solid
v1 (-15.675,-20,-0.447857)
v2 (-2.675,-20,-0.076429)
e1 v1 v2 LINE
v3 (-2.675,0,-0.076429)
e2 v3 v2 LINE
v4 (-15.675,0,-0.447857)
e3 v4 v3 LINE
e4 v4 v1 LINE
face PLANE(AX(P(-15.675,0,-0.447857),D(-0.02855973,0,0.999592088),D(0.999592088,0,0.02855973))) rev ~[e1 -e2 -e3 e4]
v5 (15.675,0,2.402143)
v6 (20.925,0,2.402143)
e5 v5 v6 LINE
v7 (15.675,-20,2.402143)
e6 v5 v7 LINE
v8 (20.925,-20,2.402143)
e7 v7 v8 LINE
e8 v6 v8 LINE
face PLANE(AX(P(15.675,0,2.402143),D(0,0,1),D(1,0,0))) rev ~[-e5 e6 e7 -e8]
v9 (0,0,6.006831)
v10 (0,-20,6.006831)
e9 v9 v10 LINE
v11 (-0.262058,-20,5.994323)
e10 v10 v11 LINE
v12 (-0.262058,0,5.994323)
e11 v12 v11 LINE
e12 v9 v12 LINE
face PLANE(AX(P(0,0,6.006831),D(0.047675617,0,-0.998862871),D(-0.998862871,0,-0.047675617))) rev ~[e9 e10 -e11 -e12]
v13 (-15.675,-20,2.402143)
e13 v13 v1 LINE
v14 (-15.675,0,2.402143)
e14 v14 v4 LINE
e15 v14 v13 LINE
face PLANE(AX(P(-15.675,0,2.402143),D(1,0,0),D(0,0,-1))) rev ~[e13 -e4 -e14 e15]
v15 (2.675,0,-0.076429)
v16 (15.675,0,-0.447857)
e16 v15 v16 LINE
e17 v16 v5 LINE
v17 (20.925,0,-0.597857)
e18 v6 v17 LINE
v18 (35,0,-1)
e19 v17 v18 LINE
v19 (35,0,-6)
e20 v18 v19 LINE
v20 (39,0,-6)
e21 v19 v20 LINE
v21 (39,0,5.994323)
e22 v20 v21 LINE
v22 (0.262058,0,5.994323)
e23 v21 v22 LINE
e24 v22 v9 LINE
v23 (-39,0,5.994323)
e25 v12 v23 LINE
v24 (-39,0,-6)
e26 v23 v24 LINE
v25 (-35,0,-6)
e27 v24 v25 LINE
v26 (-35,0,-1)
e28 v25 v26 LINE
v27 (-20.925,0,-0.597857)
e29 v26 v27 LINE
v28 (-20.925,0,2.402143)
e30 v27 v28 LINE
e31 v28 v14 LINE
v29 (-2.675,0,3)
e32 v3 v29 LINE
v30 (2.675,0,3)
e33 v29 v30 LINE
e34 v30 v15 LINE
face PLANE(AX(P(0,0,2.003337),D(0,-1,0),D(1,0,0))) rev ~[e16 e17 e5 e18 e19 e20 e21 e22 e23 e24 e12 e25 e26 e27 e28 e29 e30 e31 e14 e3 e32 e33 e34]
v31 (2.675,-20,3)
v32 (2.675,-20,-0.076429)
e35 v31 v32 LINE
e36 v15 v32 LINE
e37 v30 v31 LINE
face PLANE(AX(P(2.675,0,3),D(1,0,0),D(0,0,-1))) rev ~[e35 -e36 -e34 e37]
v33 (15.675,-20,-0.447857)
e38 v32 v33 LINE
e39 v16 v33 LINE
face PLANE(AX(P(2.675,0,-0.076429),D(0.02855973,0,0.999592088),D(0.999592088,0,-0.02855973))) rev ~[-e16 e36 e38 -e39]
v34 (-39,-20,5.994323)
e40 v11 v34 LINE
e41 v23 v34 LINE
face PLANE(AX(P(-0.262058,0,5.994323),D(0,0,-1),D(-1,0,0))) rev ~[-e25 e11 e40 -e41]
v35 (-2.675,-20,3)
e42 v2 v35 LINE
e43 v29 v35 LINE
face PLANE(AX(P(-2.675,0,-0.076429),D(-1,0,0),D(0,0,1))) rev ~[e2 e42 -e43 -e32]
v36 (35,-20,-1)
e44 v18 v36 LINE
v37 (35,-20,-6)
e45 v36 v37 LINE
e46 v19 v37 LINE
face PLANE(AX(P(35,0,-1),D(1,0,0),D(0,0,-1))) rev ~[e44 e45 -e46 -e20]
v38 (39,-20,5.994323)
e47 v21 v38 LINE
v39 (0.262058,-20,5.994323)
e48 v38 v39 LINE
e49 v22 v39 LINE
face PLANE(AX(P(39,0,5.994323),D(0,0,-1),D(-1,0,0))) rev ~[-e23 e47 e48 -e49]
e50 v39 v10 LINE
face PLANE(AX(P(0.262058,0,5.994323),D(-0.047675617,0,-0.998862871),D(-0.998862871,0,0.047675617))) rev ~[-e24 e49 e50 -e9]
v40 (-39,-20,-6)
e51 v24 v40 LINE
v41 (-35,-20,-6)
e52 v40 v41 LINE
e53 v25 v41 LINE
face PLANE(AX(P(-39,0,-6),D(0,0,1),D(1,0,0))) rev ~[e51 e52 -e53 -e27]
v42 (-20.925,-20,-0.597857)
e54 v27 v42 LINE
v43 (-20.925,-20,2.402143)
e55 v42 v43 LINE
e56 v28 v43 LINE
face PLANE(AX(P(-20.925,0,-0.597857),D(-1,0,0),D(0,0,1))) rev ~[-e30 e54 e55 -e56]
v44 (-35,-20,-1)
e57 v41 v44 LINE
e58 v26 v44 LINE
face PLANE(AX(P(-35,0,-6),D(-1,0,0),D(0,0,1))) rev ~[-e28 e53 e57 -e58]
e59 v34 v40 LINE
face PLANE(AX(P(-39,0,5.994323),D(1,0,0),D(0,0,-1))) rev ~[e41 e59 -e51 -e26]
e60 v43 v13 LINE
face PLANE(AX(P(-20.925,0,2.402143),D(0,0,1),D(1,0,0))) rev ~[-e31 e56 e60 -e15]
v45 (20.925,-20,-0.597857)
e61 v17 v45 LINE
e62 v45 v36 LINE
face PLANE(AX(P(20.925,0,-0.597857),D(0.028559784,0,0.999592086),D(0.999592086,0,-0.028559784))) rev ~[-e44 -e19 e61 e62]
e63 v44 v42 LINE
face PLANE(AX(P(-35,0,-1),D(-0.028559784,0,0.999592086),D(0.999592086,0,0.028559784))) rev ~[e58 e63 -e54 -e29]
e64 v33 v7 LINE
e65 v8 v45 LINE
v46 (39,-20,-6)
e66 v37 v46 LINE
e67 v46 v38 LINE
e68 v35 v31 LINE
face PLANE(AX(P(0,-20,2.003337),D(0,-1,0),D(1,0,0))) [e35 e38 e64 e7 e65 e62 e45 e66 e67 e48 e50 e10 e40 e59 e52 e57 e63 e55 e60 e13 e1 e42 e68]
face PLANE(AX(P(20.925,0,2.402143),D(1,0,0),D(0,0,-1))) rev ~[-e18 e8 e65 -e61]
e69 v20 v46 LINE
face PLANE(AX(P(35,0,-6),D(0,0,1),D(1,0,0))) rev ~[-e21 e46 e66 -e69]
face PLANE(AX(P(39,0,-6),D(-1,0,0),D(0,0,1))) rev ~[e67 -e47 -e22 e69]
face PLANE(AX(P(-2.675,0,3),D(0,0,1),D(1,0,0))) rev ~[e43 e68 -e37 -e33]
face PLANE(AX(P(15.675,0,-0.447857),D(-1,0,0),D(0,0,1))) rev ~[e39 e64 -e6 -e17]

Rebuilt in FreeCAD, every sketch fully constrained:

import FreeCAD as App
import Part
import Sketcher


def add_polygon(sketch, points):
    """Adds a closed chain of lines whose ends are joined by coincident constraints."""
    first, n = sketch.GeometryCount, len(points)
    for a, b in zip(points, points[1:] + points[:1]):
        sketch.addGeometry(Part.LineSegment(App.Vector(*a, 0), App.Vector(*b, 0)), False)
    for i in range(n):
        sketch.addConstraint(Sketcher.Constraint("Coincident", first + i, 2, first + (i + 1) % n, 1))

doc = App.newDocument("Part")
params = doc.addObject("Spreadsheet::Sheet", "Params")
for row, (alias, value) in enumerate([
    ("sketch1_width", "4 mm"),
    ("sketch1_height", "3 mm"),
    ("sketch1_height2", "5 mm"),
    ("sketch1_width2", "5.35 mm"),
    ("sketch1_width3", "5.25 mm"),
    ("pad1_length", "20 mm"),
], start=1):
    params.set(f"A{row}", alias)
    params.set(f"B{row}", "=" + value)
    params.setAlias(f"B{row}", alias)

body = doc.addObject("PartDesign::Body", "Body")

# Sketch on XZ plane
sketch1 = doc.addObject("Sketcher::SketchObject", "Sketch")
body.addObject(sketch1)
sketch1.AttachmentSupport = (doc.XZ_Plane, [""])
sketch1.MapMode = "FlatFace"
add_polygon(sketch1, [(-15.68, -0.45), (-2.67, -0.08), (-2.67, 3), (2.67, 3), (2.67, -0.08), (15.68, -0.45), (15.68, 2.4), (20.93, 2.4), (20.93, -0.6), (35, -1), (35, -6), (39, -6), (39, 5.99), (0.26, 5.99), (0, 6.01), (-0.26, 5.99), (-39, 5.99), (-39, -6), (-35, -6), (-35, -1), (-20.93, -0.6), (-20.93, 2.4), (-15.68, 2.4)])  # lines 0-22
sketch1.addConstraint([
    Sketcher.Constraint("Vertical", 1),
    Sketcher.Constraint("Horizontal", 2),
    Sketcher.Constraint("Vertical", 3),
    Sketcher.Constraint("Vertical", 5),
    Sketcher.Constraint("Horizontal", 6),
    Sketcher.Constraint("Vertical", 7),
    Sketcher.Constraint("Vertical", 9),
    Sketcher.Constraint("Horizontal", 10),
    Sketcher.Constraint("Vertical", 11),
    Sketcher.Constraint("Horizontal", 12),
    Sketcher.Constraint("Horizontal", 15),
    Sketcher.Constraint("Vertical", 16),
    Sketcher.Constraint("Horizontal", 17),
    Sketcher.Constraint("Vertical", 18),
    Sketcher.Constraint("Vertical", 20),
    Sketcher.Constraint("Horizontal", 21),
    Sketcher.Constraint("Vertical", 22),
    Sketcher.Constraint("Symmetric", 0, 2, 3, 2, -2),
    Sketcher.Constraint("Symmetric", 12, 2, 14, 2, -2),
    Sketcher.Constraint("Symmetric", 10, 2, 16, 2, -2),
    Sketcher.Constraint("Symmetric", 8, 2, 18, 2, -2),
    Sketcher.Constraint("Symmetric", 7, 2, 19, 2, -2),
    Sketcher.Constraint("Symmetric", 5, 2, 21, 2, -2),
    Sketcher.Constraint("PointOnObject", 13, 2, -2),
    Sketcher.Constraint("Parallel", 4, 8),
    Sketcher.Constraint("Parallel", 0, 19),
    Sketcher.Constraint("DistanceX", 10, 1, 10, 2, 4.0),
    Sketcher.Constraint("DistanceY", 7, 2, 7, 1, 3.0),
    Sketcher.Constraint("DistanceY", 9, 2, 9, 1, 5.0),
    Sketcher.Constraint("DistanceY", -1, 1, 1, 2, 3.0),
    Sketcher.Constraint("DistanceX", -1, 1, 8, 2, 35.0),
    Sketcher.Constraint("DistanceY", 8, 2, -1, 1, 1.0),
    Sketcher.Constraint("DistanceX", 3, 2, 4, 2, 13.0),
    Sketcher.Constraint("DistanceX", 2, 1, 2, 2, 5.35),
    Sketcher.Constraint("DistanceX", 6, 1, 6, 2, 5.25),
    Sketcher.Constraint("DistanceY", 5, 1, 5, 2, 2.85),
    Sketcher.Constraint("DistanceX", 12, 2, 12, 1, 38.737942),
    Sketcher.Constraint("DistanceY", 1, 1, 1, 2, 3.076429),
    Sketcher.Constraint("DistanceY", 11, 1, 11, 2, 11.994323),
    Sketcher.Constraint("DistanceY", -1, 1, 13, 2, 6.006831),
])
sketch1.setExpression("Constraints[49]", "Params.sketch1_width")
sketch1.setExpression("Constraints[50]", "Params.sketch1_height")
sketch1.setExpression("Constraints[51]", "Params.sketch1_height2")
sketch1.setExpression("Constraints[56]", "Params.sketch1_width2")
sketch1.setExpression("Constraints[57]", "Params.sketch1_width3")
pad1 = doc.addObject("PartDesign::Pad", "Pad")
body.addObject(pad1)
pad1.Profile = sketch1
pad1.setExpression("Length", "Params.pad1_length")

doc.recompute()
